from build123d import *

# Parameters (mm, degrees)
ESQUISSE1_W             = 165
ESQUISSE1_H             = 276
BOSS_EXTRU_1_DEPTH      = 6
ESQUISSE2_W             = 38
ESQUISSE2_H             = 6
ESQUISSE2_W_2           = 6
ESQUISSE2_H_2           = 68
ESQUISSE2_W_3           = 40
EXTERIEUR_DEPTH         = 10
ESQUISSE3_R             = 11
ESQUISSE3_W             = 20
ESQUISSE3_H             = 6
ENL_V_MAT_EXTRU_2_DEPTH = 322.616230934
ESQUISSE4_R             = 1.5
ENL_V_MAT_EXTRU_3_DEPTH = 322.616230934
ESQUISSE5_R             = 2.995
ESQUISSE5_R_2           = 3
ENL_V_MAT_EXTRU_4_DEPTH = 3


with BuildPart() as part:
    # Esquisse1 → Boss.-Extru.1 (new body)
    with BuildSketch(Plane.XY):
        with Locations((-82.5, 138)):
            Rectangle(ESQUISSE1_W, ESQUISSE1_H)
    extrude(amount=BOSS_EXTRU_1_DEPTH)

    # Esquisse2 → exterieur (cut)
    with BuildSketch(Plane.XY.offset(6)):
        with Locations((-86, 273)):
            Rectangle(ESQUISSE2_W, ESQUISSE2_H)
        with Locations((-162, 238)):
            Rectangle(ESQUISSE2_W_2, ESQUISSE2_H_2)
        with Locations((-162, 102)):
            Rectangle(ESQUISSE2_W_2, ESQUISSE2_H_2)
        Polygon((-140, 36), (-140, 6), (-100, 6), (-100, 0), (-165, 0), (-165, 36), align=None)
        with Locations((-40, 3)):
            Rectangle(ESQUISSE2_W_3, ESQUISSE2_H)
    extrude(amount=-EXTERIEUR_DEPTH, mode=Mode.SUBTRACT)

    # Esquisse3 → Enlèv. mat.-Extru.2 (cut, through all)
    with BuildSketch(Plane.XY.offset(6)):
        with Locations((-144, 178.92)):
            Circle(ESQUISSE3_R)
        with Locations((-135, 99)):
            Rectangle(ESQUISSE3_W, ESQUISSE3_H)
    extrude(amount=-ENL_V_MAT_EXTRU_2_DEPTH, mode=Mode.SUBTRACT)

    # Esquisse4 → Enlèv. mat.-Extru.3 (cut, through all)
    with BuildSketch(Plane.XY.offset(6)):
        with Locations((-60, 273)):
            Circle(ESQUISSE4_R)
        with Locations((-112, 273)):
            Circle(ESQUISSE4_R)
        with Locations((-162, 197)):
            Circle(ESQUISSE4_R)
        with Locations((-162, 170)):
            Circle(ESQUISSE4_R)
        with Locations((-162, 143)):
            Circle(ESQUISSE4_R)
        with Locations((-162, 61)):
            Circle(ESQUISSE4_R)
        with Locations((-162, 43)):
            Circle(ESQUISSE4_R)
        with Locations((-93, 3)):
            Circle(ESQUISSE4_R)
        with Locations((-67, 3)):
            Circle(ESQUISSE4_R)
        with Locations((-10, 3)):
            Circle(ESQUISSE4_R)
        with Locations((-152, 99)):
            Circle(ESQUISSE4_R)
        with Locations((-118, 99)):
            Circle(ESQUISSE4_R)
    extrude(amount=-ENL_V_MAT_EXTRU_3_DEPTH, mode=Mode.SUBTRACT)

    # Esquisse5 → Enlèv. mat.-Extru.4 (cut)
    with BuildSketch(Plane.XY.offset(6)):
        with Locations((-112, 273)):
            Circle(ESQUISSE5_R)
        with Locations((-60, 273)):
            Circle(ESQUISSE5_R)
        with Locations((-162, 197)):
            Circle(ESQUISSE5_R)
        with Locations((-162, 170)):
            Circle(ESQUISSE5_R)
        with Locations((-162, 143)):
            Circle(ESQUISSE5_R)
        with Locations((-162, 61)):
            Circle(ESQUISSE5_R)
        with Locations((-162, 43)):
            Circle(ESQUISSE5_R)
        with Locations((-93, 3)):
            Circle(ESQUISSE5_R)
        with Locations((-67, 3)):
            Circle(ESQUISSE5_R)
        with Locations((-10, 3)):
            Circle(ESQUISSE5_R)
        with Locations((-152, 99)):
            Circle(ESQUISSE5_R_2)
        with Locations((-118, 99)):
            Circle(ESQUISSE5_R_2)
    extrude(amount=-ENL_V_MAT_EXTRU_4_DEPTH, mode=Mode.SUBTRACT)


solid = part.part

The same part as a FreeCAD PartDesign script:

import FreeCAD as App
import Part
import Sketcher
Q = App.Units.Quantity


def add_polygon(sketch, points):
    """Adds a closed chain of lines whose ends are joined by coincident constraints."""
    first, n = sketch.GeometryCount, len(points)
    for a, b in zip(points, points[1:] + points[:1]):
        sketch.addGeometry(Part.LineSegment(App.Vector(*a, 0), App.Vector(*b, 0)), False)
    for i in range(n):
        sketch.addConstraint(Sketcher.Constraint("Coincident", first + i, 2, first + (i + 1) % n, 1))

doc = App.newDocument("Part")
params = doc.addObject("Spreadsheet::Sheet", "Params")
for row, (alias, value) in enumerate([
    ("sketch1_width", "165 mm"),
    ("sketch1_height", "276 mm"),
    ("pad1_length", "6 mm"),
    ("sketch2_width", "38 mm"),
    ("sketch2_width2", "6 mm"),
    ("sketch2_width3", "25 mm"),
    ("sketch2_width4", "65 mm"),
    ("sketch2_height", "68 mm"),
    ("pocket1_length", "10 mm"),
    ("sketch3_diameter", "22 mm"),
    ("sketch3_width", "20 mm"),
    ("sketch3_height", "6 mm"),
    ("sketch4_diameter", "3 mm"),
    ("sketch5_diameter", "6 mm"),
    ("sketch5_diameter2", "5.99 mm"),
    ("pocket4_length", "3 mm"),
], start=1):
    params.set(f"A{row}", alias)
    params.set(f"B{row}", "=" + value)
    params.setAlias(f"B{row}", alias)

body = doc.addObject("PartDesign::Body", "Body")

sketch1 = body.newObject("Sketcher::SketchObject", "Sketch")
sketch1.AttachmentSupport = (doc.getObject("XY_Plane"), [""])
sketch1.MapMode = "FlatFace"
add_polygon(sketch1, [(-165, 276), (-165, 0), (0, 0), (0, 276)])
sketch1.addConstraint([
    Sketcher.Constraint("Vertical", 0),
    Sketcher.Constraint("Horizontal", 1),
    Sketcher.Constraint("Vertical", 2),
    Sketcher.Constraint("Horizontal", 3),
    Sketcher.Constraint("Coincident", 1, 2, -1, 1),
    Sketcher.Constraint("DistanceX", 1, 1, 1, 2, Q("165 mm")),
    Sketcher.Constraint("DistanceY", 0, 2, 0, 1, Q("276 mm")),
])
sketch1.setExpression("Constraints[9]", "Params.sketch1_width")
sketch1.setExpression("Constraints[10]", "Params.sketch1_height")
pad1 = body.newObject("PartDesign::Pad", "Pad")
pad1.Profile = sketch1
pad1.setExpression("Length", "Params.pad1_length")

sketch2 = body.newObject("Sketcher::SketchObject", "Sketch001")
sketch2.AttachmentSupport = (doc.getObject("XY_Plane"), [""])
sketch2.MapMode = "FlatFace"
sketch2.AttachmentOffset = App.Placement(App.Vector(0, 0, 6), App.Rotation())
add_polygon(sketch2, [(-105, 276), (-105, 270), (-67, 270), (-67, 276)])
add_polygon(sketch2, [(-165, 272), (-165, 204), (-159, 204), (-159, 272)])
add_polygon(sketch2, [(-165, 136), (-165, 68), (-159, 68), (-159, 136)])
add_polygon(sketch2, [(-140, 6), (-140, 36), (-165, 36), (-165, 0), (-100, 0), (-100, 6)])
add_polygon(sketch2, [(-60, 6), (-60, 0), (-20, 0), (-20, 6)])
sketch2.addConstraint([
    Sketcher.Constraint("Vertical", 0),
    Sketcher.Constraint("Horizontal", 1),
    Sketcher.Constraint("Vertical", 2),
    Sketcher.Constraint("Horizontal", 3),
    Sketcher.Constraint("Vertical", 4),
    Sketcher.Constraint("Horizontal", 5),
    Sketcher.Constraint("Vertical", 6),
    Sketcher.Constraint("Horizontal", 7),
    Sketcher.Constraint("Vertical", 8),
    Sketcher.Constraint("Horizontal", 9),
    Sketcher.Constraint("Vertical", 10),
    Sketcher.Constraint("Horizontal", 11),
    Sketcher.Constraint("Vertical", 12),
    Sketcher.Constraint("Horizontal", 13),
    Sketcher.Constraint("Vertical", 14),
    Sketcher.Constraint("Horizontal", 15),
    Sketcher.Constraint("Vertical", 16),
    Sketcher.Constraint("Horizontal", 17),
    Sketcher.Constraint("Vertical", 18),
    Sketcher.Constraint("Horizontal", 19),
    Sketcher.Constraint("Vertical", 20),
    Sketcher.Constraint("Horizontal", 21),
    Sketcher.Constraint("PointOnObject", 14, 2, -1),
    Sketcher.Constraint("PointOnObject", 18, 2, -1),
    Sketcher.Constraint("Horizontal", 17, 2, 20, 2),
    Sketcher.Constraint("Vertical", 7, 2, 8, 2),
    Sketcher.Constraint("Vertical", 6, 2, 9, 2),
    Sketcher.Constraint("Vertical", 11, 2, 13, 2),
    Sketcher.Constraint("Equal", 17, 19),
    Sketcher.Constraint("Equal", 11, 0),
    Sketcher.Constraint("Equal", 6, 8),
    Sketcher.Constraint("Equal", 2, 16),
    Sketcher.Constraint("DistanceX", 1, 1, 1, 2, Q("38 mm")),
    Sketcher.Constraint("DistanceX", 5, 1, 5, 2, Q("6 mm")),
    Sketcher.Constraint("DistanceX", 13, 2, 13, 1, Q("25 mm")),
    Sketcher.Constraint("DistanceX", 15, 1, 15, 2, Q("65 mm")),
    Sketcher.Constraint("DistanceY", 4, 2, 4, 1, Q("68 mm")),
    Sketcher.Constraint("DistanceY", 12, 1, 12, 2, Q("30 mm")),
    Sketcher.Constraint("DistanceX", 0, 2, -1, 1, Q("105 mm")),
    Sketcher.Constraint("DistanceY", -1, 1, 0, 2, Q("270 mm")),
    Sketcher.Constraint("DistanceX", 4, 2, -1, 1, Q("165 mm")),
    Sketcher.Constraint("DistanceY", -1, 1, 4, 2, Q("204 mm")),
    Sketcher.Constraint("DistanceY", -1, 1, 8, 2, Q("68 mm")),
    Sketcher.Constraint("DistanceX", 18, 2, -1, 1, Q("60 mm")),
])
sketch2.setExpression("Constraints[54]", "Params.sketch2_width")
sketch2.setExpression("Constraints[55]", "Params.sketch2_width2")
sketch2.setExpression("Constraints[56]", "Params.sketch2_width3")
sketch2.setExpression("Constraints[57]", "Params.sketch2_width4")
sketch2.setExpression("Constraints[58]", "Params.sketch2_height")
pocket1 = body.newObject("PartDesign::Pocket", "Pocket")
pocket1.Profile = sketch2
pocket1.setExpression("Length", "Params.pocket1_length")

sketch3 = body.newObject("Sketcher::SketchObject", "Sketch002")
sketch3.AttachmentSupport = (doc.getObject("XY_Plane"), [""])
sketch3.MapMode = "FlatFace"
sketch3.AttachmentOffset = App.Placement(App.Vector(0, 0, 6), App.Rotation())
sketch3.addGeometry(Part.Circle(App.Vector(-144, 179, 0), App.Vector(0, 0, 1), 11), False)
add_polygon(sketch3, [(-145, 102), (-145, 96), (-125, 96), (-125, 102)])
sketch3.addConstraint([
    Sketcher.Constraint("Vertical", 1),
    Sketcher.Constraint("Horizontal", 2),
    Sketcher.Constraint("Vertical", 3),
    Sketcher.Constraint("Horizontal", 4),
    Sketcher.Constraint("Diameter", 0, Q("22 mm")),
    Sketcher.Constraint("DistanceX", 2, 1, 2, 2, Q("20 mm")),
    Sketcher.Constraint("DistanceY", 1, 2, 1, 1, Q("6 mm")),
    Sketcher.Constraint("DistanceX", 0, 3, -1, 1, Q("144 mm")),
    Sketcher.Constraint("DistanceX", 1, 2, -1, 1, Q("145 mm")),
    Sketcher.Constraint("DistanceY", -1, 1, 1, 2, Q("96 mm")),
    Sketcher.Constraint("DistanceY", -1, 1, 0, 3, Q("178.92 mm")),
])
sketch3.setExpression("Constraints[8]", "Params.sketch3_diameter")
sketch3.setExpression("Constraints[9]", "Params.sketch3_width")
sketch3.setExpression("Constraints[10]", "Params.sketch3_height")
pocket2 = body.newObject("PartDesign::Pocket", "Pocket001")
pocket2.Profile = sketch3
pocket2.Type = "ThroughAll"

sketch4 = body.newObject("Sketcher::SketchObject", "Sketch003")
sketch4.AttachmentSupport = (doc.getObject("XY_Plane"), [""])
sketch4.MapMode = "FlatFace"
sketch4.AttachmentOffset = App.Placement(App.Vector(0, 0, 6), App.Rotation())
sketch4.addGeometry([
    Part.Circle(App.Vector(-60, 273, 0), App.Vector(0, 0, 1), 1.5),
    Part.Circle(App.Vector(-112, 273, 0), App.Vector(0, 0, 1), 1.5),
    Part.Circle(App.Vector(-162, 197, 0), App.Vector(0, 0, 1), 1.5),
    Part.Circle(App.Vector(-162, 170, 0), App.Vector(0, 0, 1), 1.5),
    Part.Circle(App.Vector(-162, 143, 0), App.Vector(0, 0, 1), 1.5),
    Part.Circle(App.Vector(-162, 61, 0), App.Vector(0, 0, 1), 1.5),
    Part.Circle(App.Vector(-162, 43, 0), App.Vector(0, 0, 1), 1.5),
    Part.Circle(App.Vector(-93, 3, 0), App.Vector(0, 0, 1), 1.5),
    Part.Circle(App.Vector(-67, 3, 0), App.Vector(0, 0, 1), 1.5),
    Part.Circle(App.Vector(-10, 3, 0), App.Vector(0, 0, 1), 1.5),
    Part.Circle(App.Vector(-152, 99, 0), App.Vector(0, 0, 1), 1.5),
    Part.Circle(App.Vector(-118, 99, 0), App.Vector(0, 0, 1), 1.5),
], False)
sketch4.addConstraint([
    Sketcher.Constraint("Equal", 0, 1),
    Sketcher.Constraint("Equal", 1, 2),
    Sketcher.Constraint("Equal", 2, 3),
    Sketcher.Constraint("Equal", 3, 4),
    Sketcher.Constraint("Equal", 4, 5),
    Sketcher.Constraint("Equal", 5, 6),
    Sketcher.Constraint("Equal", 6, 7),
    Sketcher.Constraint("Equal", 7, 8),
    Sketcher.Constraint("Equal", 8, 9),
    Sketcher.Constraint("Equal", 9, 10),
    Sketcher.Constraint("Equal", 10, 11),
    Sketcher.Constraint("Horizontal", 0, 3, 1, 3),
    Sketcher.Constraint("Horizontal", 7, 3, 8, 3),
    Sketcher.Constraint("Horizontal", 8, 3, 9, 3),
    Sketcher.Constraint("Horizontal", 10, 3, 11, 3),
    Sketcher.Constraint("Vertical", 2, 3, 3, 3),
    Sketcher.Constraint("Vertical", 3, 3, 4, 3),
    Sketcher.Constraint("Vertical", 4, 3, 5, 3),
    Sketcher.Constraint("Vertical", 5, 3, 6, 3),
    Sketcher.Constraint("Diameter", 0, Q("3 mm")),
    Sketcher.Constraint("DistanceX", 0, 3, -1, 1, Q("60 mm")),
    Sketcher.Constraint("DistanceY", -1, 1, 0, 3, Q("273 mm")),
    Sketcher.Constraint("DistanceX", 1, 3, -1, 1, Q("112 mm")),
    Sketcher.Constraint("DistanceX", 2, 3, -1, 1, Q("162 mm")),
    Sketcher.Constraint("DistanceY", -1, 1, 2, 3, Q("197 mm")),
    Sketcher.Constraint("DistanceY", -1, 1, 3, 3, Q("170 mm")),
    Sketcher.Constraint("DistanceY", -1, 1, 4, 3, Q("143 mm")),
    Sketcher.Constraint("DistanceY", -1, 1, 5, 3, Q("61 mm")),
    Sketcher.Constraint("DistanceY", -1, 1, 6, 3, Q("43 mm")),
    Sketcher.Constraint("DistanceX", 7, 3, -1, 1, Q("93 mm")),
    Sketcher.Constraint("DistanceY", -1, 1, 7, 3, Q("3 mm")),
    Sketcher.Constraint("DistanceX", 8, 3, -1, 1, Q("67 mm")),
    Sketcher.Constraint("DistanceX", 9, 3, -1, 1, Q("10 mm")),
    Sketcher.Constraint("DistanceX", 10, 3, -1, 1, Q("152 mm")),
    Sketcher.Constraint("DistanceY", -1, 1, 10, 3, Q("99 mm")),
    Sketcher.Constraint("DistanceX", 11, 3, -1, 1, Q("118 mm")),
])
sketch4.setExpression("Constraints[19]", "Params.sketch4_diameter")
pocket3 = body.newObject("PartDesign::Pocket", "Pocket002")
pocket3.Profile = sketch4
pocket3.Type = "ThroughAll"

sketch5 = body.newObject("Sketcher::SketchObject", "Sketch004")
sketch5.AttachmentSupport = (doc.getObject("XY_Plane"), [""])
sketch5.MapMode = "FlatFace"
sketch5.AttachmentOffset = App.Placement(App.Vector(0, 0, 6), App.Rotation())
sketch5.addGeometry([
    Part.Circle(App.Vector(-112, 273, 0), App.Vector(0, 0, 1), 3),
    Part.Circle(App.Vector(-60, 273, 0), App.Vector(0, 0, 1), 3),
    Part.Circle(App.Vector(-162, 197, 0), App.Vector(0, 0, 1), 3),
    Part.Circle(App.Vector(-162, 170, 0), App.Vector(0, 0, 1), 3),
    Part.Circle(App.Vector(-162, 143, 0), App.Vector(0, 0, 1), 3),
    Part.Circle(App.Vector(-162, 61, 0), App.Vector(0, 0, 1), 3),
    Part.Circle(App.Vector(-162, 43, 0), App.Vector(0, 0, 1), 3),
    Part.Circle(App.Vector(-93, 3, 0), App.Vector(0, 0, 1), 3),
    Part.Circle(App.Vector(-67, 3, 0), App.Vector(0, 0, 1), 3),
    Part.Circle(App.Vector(-10, 3, 0), App.Vector(0, 0, 1), 3),
    Part.Circle(App.Vector(-152, 99, 0), App.Vector(0, 0, 1), 3),
    Part.Circle(App.Vector(-118, 99, 0), App.Vector(0, 0, 1), 3),
], False)
sketch5.addConstraint([
    Sketcher.Constraint("Equal", 0, 1),
    Sketcher.Constraint("Equal", 1, 2),
    Sketcher.Constraint("Equal", 2, 3),
    Sketcher.Constraint("Equal", 3, 4),
    Sketcher.Constraint("Equal", 4, 5),
    Sketcher.Constraint("Equal", 5, 6),
    Sketcher.Constraint("Equal", 6, 7),
    Sketcher.Constraint("Equal", 7, 8),
    Sketcher.Constraint("Equal", 8, 9),
    Sketcher.Constraint("Equal", 10, 11),
    Sketcher.Constraint("Horizontal", 0, 3, 1, 3),
    Sketcher.Constraint("Horizontal", 7, 3, 8, 3),
    Sketcher.Constraint("Horizontal", 8, 3, 9, 3),
    Sketcher.Constraint("Horizontal", 10, 3, 11, 3),
    Sketcher.Constraint("Vertical", 2, 3, 3, 3),
    Sketcher.Constraint("Vertical", 3, 3, 4, 3),
    Sketcher.Constraint("Vertical", 4, 3, 5, 3),
    Sketcher.Constraint("Vertical", 5, 3, 6, 3),
    Sketcher.Constraint("Diameter", 10, Q("6 mm")),
    Sketcher.Constraint("Diameter", 0, Q("5.99 mm")),
    Sketcher.Constraint("DistanceX", 0, 3, -1, 1, Q("112 mm")),
    Sketcher.Constraint("DistanceY", -1, 1, 0, 3, Q("273 mm")),
    Sketcher.Constraint("DistanceX", 1, 3, -1, 1, Q("60 mm")),
    Sketcher.Constraint("DistanceX", 2, 3, -1, 1, Q("162 mm")),
    Sketcher.Constraint("DistanceY", -1, 1, 2, 3, Q("197 mm")),
    Sketcher.Constraint("DistanceY", -1, 1, 3, 3, Q("170 mm")),
    Sketcher.Constraint("DistanceY", -1, 1, 4, 3, Q("143 mm")),
    Sketcher.Constraint("DistanceY", -1, 1, 5, 3, Q("61 mm")),
    Sketcher.Constraint("DistanceY", -1, 1, 6, 3, Q("43 mm")),
    Sketcher.Constraint("DistanceX", 7, 3, -1, 1, Q("93 mm")),
    Sketcher.Constraint("DistanceY", -1, 1, 7, 3, Q("3 mm")),
    Sketcher.Constraint("DistanceX", 8, 3, -1, 1, Q("67 mm")),
    Sketcher.Constraint("DistanceX", 9, 3, -1, 1, Q("10 mm")),
    Sketcher.Constraint("DistanceX", 10, 3, -1, 1, Q("152 mm")),
    Sketcher.Constraint("DistanceY", -1, 1, 10, 3, Q("99 mm")),
    Sketcher.Constraint("DistanceX", 11, 3, -1, 1, Q("118 mm")),
])
sketch5.setExpression("Constraints[18]", "Params.sketch5_diameter")
sketch5.setExpression("Constraints[19]", "Params.sketch5_diameter2")
pocket4 = body.newObject("PartDesign::Pocket", "Pocket003")
pocket4.Profile = sketch5
pocket4.setExpression("Length", "Params.pocket4_length")

doc.recompute()
